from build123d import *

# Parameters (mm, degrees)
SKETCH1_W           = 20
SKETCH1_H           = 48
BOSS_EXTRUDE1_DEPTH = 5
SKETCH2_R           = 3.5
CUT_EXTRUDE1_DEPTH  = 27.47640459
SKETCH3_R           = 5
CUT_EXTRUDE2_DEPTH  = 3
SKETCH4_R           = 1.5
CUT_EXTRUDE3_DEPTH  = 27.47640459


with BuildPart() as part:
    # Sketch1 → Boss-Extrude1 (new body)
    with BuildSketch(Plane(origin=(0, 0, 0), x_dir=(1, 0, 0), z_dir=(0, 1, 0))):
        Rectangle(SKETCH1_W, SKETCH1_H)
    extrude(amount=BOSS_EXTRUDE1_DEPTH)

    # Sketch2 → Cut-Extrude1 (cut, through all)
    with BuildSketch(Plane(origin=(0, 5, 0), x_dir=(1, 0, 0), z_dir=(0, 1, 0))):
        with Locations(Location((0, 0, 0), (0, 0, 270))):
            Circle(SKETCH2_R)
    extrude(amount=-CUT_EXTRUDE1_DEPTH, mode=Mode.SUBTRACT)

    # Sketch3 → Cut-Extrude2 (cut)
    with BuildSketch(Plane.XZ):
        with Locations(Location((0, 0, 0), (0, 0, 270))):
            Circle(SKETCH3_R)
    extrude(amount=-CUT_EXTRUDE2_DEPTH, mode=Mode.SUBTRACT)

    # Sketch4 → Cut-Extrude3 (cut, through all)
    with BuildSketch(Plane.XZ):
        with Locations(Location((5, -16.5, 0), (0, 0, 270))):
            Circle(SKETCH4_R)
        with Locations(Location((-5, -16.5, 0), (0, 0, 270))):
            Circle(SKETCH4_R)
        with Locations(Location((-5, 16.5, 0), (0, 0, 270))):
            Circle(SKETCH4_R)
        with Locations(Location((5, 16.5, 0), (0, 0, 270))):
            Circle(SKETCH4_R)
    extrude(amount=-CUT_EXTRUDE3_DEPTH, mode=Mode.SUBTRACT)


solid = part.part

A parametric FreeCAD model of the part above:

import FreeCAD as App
import Part
import Sketcher

V = App.Vector

doc = App.newDocument("Part")
body = doc.addObject("PartDesign::Body", "Body")

# Sketch on XZ plane
sketch1 = body.newObject("Sketcher::SketchObject", "Sketch")
sketch1.AttachmentSupport = (doc.getObject("XZ_Plane"), [""])
sketch1.MapMode = "FlatFace"
sketch1.addGeometry(Part.LineSegment(V(-10, -24, 0), V(-10, 24, 0)), False)
sketch1.addGeometry(Part.LineSegment(V(-10, 24, 0), V(10, 24, 0)), False)
sketch1.addGeometry(Part.LineSegment(V(10, 24, 0), V(10, -24, 0)), False)
sketch1.addGeometry(Part.LineSegment(V(10, -24, 0), V(-10, -24, 0)), False)
sketch1.addConstraint(Sketcher.Constraint("Coincident", 0, 2, 1, 1))
sketch1.addConstraint(Sketcher.Constraint("Coincident", 1, 2, 2, 1))
sketch1.addConstraint(Sketcher.Constraint("Coincident", 2, 2, 3, 1))
sketch1.addConstraint(Sketcher.Constraint("Coincident", 3, 2, 0, 1))
sketch1.addConstraint(Sketcher.Constraint("Vertical", 0))
sketch1.addConstraint(Sketcher.Constraint("Horizontal", 1))
sketch1.addConstraint(Sketcher.Constraint("Vertical", 2))
sketch1.addConstraint(Sketcher.Constraint("Horizontal", 3))
sketch1.addConstraint(Sketcher.Constraint("Symmetric", 0, 2, 2, 2, -1, 1))
sketch1.addConstraint(Sketcher.Constraint("DistanceX", 1, 1, 1, 2, 20.0))
sketch1.addConstraint(Sketcher.Constraint("DistanceY", 0, 1, 0, 2, 48.0))
pad1 = body.newObject("PartDesign::Pad", "Pad")
pad1.Profile = sketch1
pad1.Length = 5
pad1.Reversed = True

# Sketch on XZ plane
sketch2 = body.newObject("Sketcher::SketchObject", "Sketch001")
sketch2.AttachmentSupport = (doc.getObject("XZ_Plane"), [""])
sketch2.MapMode = "FlatFace"
sketch2.AttachmentOffset = App.Placement(V(0, 0, -5), App.Rotation())
sketch2.addGeometry(Part.Circle(V(0, 0, 0), V(0, 0, 1), 3.5), False)
sketch2.addConstraint(Sketcher.Constraint("Coincident", 0, 3, -1, 1))
sketch2.addConstraint(Sketcher.Constraint("Diameter", 0, 7.0))
pocket1 = body.newObject("PartDesign::Pocket", "Pocket")
pocket1.Profile = sketch2
pocket1.Type = "ThroughAll"
pocket1.Reversed = True

# Sketch on XZ plane
sketch3 = body.newObject("Sketcher::SketchObject", "Sketch002")
sketch3.AttachmentSupport = (doc.getObject("XZ_Plane"), [""])
sketch3.MapMode = "FlatFace"
sketch3.addGeometry(Part.Circle(V(0, 0, 0), V(0, 0, 1), 5), False)
sketch3.addConstraint(Sketcher.Constraint("Coincident", 0, 3, -1, 1))
sketch3.addConstraint(Sketcher.Constraint("Diameter", 0, 10.0))
pocket2 = body.newObject("PartDesign::Pocket", "Pocket001")
pocket2.Profile = sketch3
pocket2.Length = 3

# Sketch on XZ plane
sketch4 = body.newObject("Sketcher::SketchObject", "Sketch003")
sketch4.AttachmentSupport = (doc.getObject("XZ_Plane"), [""])
sketch4.MapMode = "FlatFace"
sketch4.addGeometry(Part.Circle(V(5, -16.5, 0), V(0, 0, 1), 1.5), False)
sketch4.addGeometry(Part.Circle(V(-5, -16.5, 0), V(0, 0, 1), 1.5), False)
sketch4.addGeometry(Part.Circle(V(-5, 16.5, 0), V(0, 0, 1), 1.5), False)
sketch4.addGeometry(Part.Circle(V(5, 16.5, 0), V(0, 0, 1), 1.5), False)
sketch4.addConstraint(Sketcher.Constraint("Equal", 0, 1))
sketch4.addConstraint(Sketcher.Constraint("Equal", 1, 2))
sketch4.addConstraint(Sketcher.Constraint("Equal", 2, 3))
sketch4.addConstraint(Sketcher.Constraint("Symmetric", 0, 3, 2, 3, -1, 1))
sketch4.addConstraint(Sketcher.Constraint("Symmetric", 1, 3, 3, 3, -1, 1))
sketch4.addConstraint(Sketcher.Constraint("Symmetric", 0, 3, 1, 3, -2))
sketch4.addConstraint(Sketcher.Constraint("Diameter", 0, 3.0))
sketch4.addConstraint(Sketcher.Constraint("DistanceX", -1, 1, 0, 3, 5.0))
sketch4.addConstraint(Sketcher.Constraint("DistanceY", 1, 3, 2, 3, 33.0))
pocket3 = body.newObject("PartDesign::Pocket", "Pocket002")
pocket3.Profile = sketch4
pocket3.Type = "ThroughAll"

doc.recompute()
